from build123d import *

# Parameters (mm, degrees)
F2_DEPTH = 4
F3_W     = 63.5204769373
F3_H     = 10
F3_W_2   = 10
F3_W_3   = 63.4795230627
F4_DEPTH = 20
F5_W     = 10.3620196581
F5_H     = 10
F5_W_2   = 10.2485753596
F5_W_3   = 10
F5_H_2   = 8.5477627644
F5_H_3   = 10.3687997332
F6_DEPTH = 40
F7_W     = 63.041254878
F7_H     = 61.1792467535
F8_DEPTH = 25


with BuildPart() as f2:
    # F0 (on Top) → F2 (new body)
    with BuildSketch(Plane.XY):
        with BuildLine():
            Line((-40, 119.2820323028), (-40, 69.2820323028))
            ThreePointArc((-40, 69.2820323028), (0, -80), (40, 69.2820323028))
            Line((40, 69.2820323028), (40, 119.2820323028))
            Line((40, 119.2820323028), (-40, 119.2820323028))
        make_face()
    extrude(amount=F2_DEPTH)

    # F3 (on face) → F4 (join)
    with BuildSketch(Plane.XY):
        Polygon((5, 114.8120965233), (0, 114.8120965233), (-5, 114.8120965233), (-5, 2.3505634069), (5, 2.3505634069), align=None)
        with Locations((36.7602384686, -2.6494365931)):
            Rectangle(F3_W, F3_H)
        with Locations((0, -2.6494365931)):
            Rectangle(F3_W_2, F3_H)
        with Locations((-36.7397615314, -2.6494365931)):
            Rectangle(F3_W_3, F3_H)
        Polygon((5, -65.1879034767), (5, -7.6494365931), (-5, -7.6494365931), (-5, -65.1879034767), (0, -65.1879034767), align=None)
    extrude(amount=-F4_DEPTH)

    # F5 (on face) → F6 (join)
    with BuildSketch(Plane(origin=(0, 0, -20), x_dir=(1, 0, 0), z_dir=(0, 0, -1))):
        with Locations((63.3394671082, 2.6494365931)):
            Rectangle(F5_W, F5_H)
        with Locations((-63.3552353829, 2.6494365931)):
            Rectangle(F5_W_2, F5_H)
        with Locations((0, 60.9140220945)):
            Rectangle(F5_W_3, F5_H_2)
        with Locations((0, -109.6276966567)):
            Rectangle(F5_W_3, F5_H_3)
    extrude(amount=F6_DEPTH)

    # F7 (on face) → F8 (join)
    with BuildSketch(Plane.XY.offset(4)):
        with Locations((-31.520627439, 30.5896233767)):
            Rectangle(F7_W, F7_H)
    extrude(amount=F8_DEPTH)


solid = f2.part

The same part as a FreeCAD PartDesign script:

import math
import FreeCAD as App
import Part
import Sketcher
Q = App.Units.Quantity

doc = App.newDocument("Part")
params = doc.addObject("Spreadsheet::Sheet", "Params")
for row, (alias, value) in enumerate([
    ("sketch1_radius", "80 mm"),
    ("sketch1_width", "80 mm"),
    ("sketch1_height", "50 mm"),
    ("pad1_length", "4 mm"),
    ("sketch2_width", "10 mm"),
    ("pad2_length", "20 mm"),
    ("sketch3_width", "10 mm"),
    ("pad3_length", "40 mm"),
    ("pad4_length", "25 mm"),
], start=1):
    params.set(f"A{row}", alias)
    params.set(f"B{row}", "=" + value)
    params.setAlias(f"B{row}", alias)

body = doc.addObject("PartDesign::Body", "Body")

sketch1 = body.newObject("Sketcher::SketchObject", "Sketch")
sketch1.AttachmentSupport = (doc.getObject("XY_Plane"), [""])
sketch1.MapMode = "FlatFace"
sketch1.addGeometry(Part.LineSegment(App.Vector(-40, 119, 0), App.Vector(-40, 69, 0)), False)
sketch1.addGeometry(Part.ArcOfCircle(Part.Circle(App.Vector(0, 0, 0), App.Vector(0, 0, 1), 80), math.radians(120), math.radians(420)), False)
sketch1.addGeometry(Part.LineSegment(App.Vector(40, 69, 0), App.Vector(40, 119, 0)), False)
sketch1.addGeometry(Part.LineSegment(App.Vector(40, 119, 0), App.Vector(-40, 119, 0)), False)
sketch1.addConstraint(Sketcher.Constraint("Coincident", 0, 2, 1, 1))
sketch1.addConstraint(Sketcher.Constraint("Coincident", 1, 2, 2, 1))
sketch1.addConstraint(Sketcher.Constraint("Coincident", 2, 2, 3, 1))
sketch1.addConstraint(Sketcher.Constraint("Coincident", 3, 2, 0, 1))
sketch1.addConstraint(Sketcher.Constraint("Vertical", 0))
sketch1.addConstraint(Sketcher.Constraint("Vertical", 2))
sketch1.addConstraint(Sketcher.Constraint("Horizontal", 3))
sketch1.addConstraint(Sketcher.Constraint("Coincident", 1, 3, -1, 1))
sketch1.addConstraint(Sketcher.Constraint("Horizontal", 0, 2, 1, 2))
sketch1.addConstraint(Sketcher.Constraint("Radius", 1, Q("80 mm")))
sketch1.addConstraint(Sketcher.Constraint("DistanceX", 3, 2, 3, 1, Q("80 mm")))
sketch1.addConstraint(Sketcher.Constraint("DistanceY", 0, 2, 0, 1, Q("50 mm")))
sketch1.setExpression("Constraints[9]", "Params.sketch1_radius")
sketch1.setExpression("Constraints[10]", "Params.sketch1_width")
sketch1.setExpression("Constraints[11]", "Params.sketch1_height")
pad1 = body.newObject("PartDesign::Pad", "Pad")
pad1.Profile = sketch1
pad1.setExpression("Length", "Params.pad1_length")

sketch2 = body.newObject("Sketcher::SketchObject", "Sketch001")
sketch2.AttachmentSupport = (doc.getObject("XY_Plane"), [""])
sketch2.MapMode = "FlatFace"
sketch2.addGeometry(Part.LineSegment(App.Vector(5, 115, 0), App.Vector(-5, 115, 0)), False)
sketch2.addGeometry(Part.LineSegment(App.Vector(-5, 115, 0), App.Vector(-5, 2, 0)), False)
sketch2.addGeometry(Part.LineSegment(App.Vector(-5, 2, 0), App.Vector(-68, 2, 0)), False)
sketch2.addGeometry(Part.LineSegment(App.Vector(-68, 2, 0), App.Vector(-68, -8, 0)), False)
sketch2.addGeometry(Part.LineSegment(App.Vector(-68, -8, 0), App.Vector(-5, -8, 0)), False)
sketch2.addGeometry(Part.LineSegment(App.Vector(-5, -8, 0), App.Vector(-5, -65, 0)), False)
sketch2.addGeometry(Part.LineSegment(App.Vector(-5, -65, 0), App.Vector(5, -65, 0)), False)
sketch2.addGeometry(Part.LineSegment(App.Vector(5, -65, 0), App.Vector(5, -8, 0)), False)
sketch2.addGeometry(Part.LineSegment(App.Vector(5, -8, 0), App.Vector(69, -8, 0)), False)
sketch2.addGeometry(Part.LineSegment(App.Vector(69, -8, 0), App.Vector(69, 2, 0)), False)
sketch2.addGeometry(Part.LineSegment(App.Vector(69, 2, 0), App.Vector(5, 2, 0)), False)
sketch2.addGeometry(Part.LineSegment(App.Vector(5, 2, 0), App.Vector(5, 115, 0)), False)
sketch2.addConstraint(Sketcher.Constraint("Coincident", 0, 2, 1, 1))
sketch2.addConstraint(Sketcher.Constraint("Coincident", 1, 2, 2, 1))
sketch2.addConstraint(Sketcher.Constraint("Coincident", 2, 2, 3, 1))
sketch2.addConstraint(Sketcher.Constraint("Coincident", 3, 2, 4, 1))
sketch2.addConstraint(Sketcher.Constraint("Coincident", 4, 2, 5, 1))
sketch2.addConstraint(Sketcher.Constraint("Coincident", 5, 2, 6, 1))
sketch2.addConstraint(Sketcher.Constraint("Coincident", 6, 2, 7, 1))
sketch2.addConstraint(Sketcher.Constraint("Coincident", 7, 2, 8, 1))
sketch2.addConstraint(Sketcher.Constraint("Coincident", 8, 2, 9, 1))
sketch2.addConstraint(Sketcher.Constraint("Coincident", 9, 2, 10, 1))
sketch2.addConstraint(Sketcher.Constraint("Coincident", 10, 2, 11, 1))
sketch2.addConstraint(Sketcher.Constraint("Coincident", 11, 2, 0, 1))
sketch2.addConstraint(Sketcher.Constraint("Horizontal", 0))
sketch2.addConstraint(Sketcher.Constraint("Vertical", 1))
sketch2.addConstraint(Sketcher.Constraint("Horizontal", 2))
sketch2.addConstraint(Sketcher.Constraint("Vertical", 3))
sketch2.addConstraint(Sketcher.Constraint("Horizontal", 4))
sketch2.addConstraint(Sketcher.Constraint("Vertical", 5))
sketch2.addConstraint(Sketcher.Constraint("Horizontal", 6))
sketch2.addConstraint(Sketcher.Constraint("Vertical", 7))
sketch2.addConstraint(Sketcher.Constraint("Horizontal", 8))
sketch2.addConstraint(Sketcher.Constraint("Vertical", 9))
sketch2.addConstraint(Sketcher.Constraint("Horizontal", 10))
sketch2.addConstraint(Sketcher.Constraint("Vertical", 11))
sketch2.addConstraint(Sketcher.Constraint("Symmetric", 4, 2, 7, 2, -2))
sketch2.addConstraint(Sketcher.Constraint("Symmetric", 1, 2, 10, 2, -2))
sketch2.addConstraint(Sketcher.Constraint("Vertical", 1, 2, 4, 2))
sketch2.addConstraint(Sketcher.Constraint("Equal", 6, 3))
sketch2.addConstraint(Sketcher.Constraint("DistanceX", 0, 2, 0, 1, Q("10 mm")))
sketch2.addConstraint(Sketcher.Constraint("DistanceY", 5, 2, 0, 2, Q("180 mm")))
sketch2.addConstraint(Sketcher.Constraint("DistanceX", 2, 2, 2, 1, Q("63.479523 mm")))
sketch2.addConstraint(Sketcher.Constraint("DistanceX", 8, 1, 8, 2, Q("63.520477 mm")))
sketch2.addConstraint(Sketcher.Constraint("DistanceY", 1, 2, 1, 1, Q("112.461533 mm")))
sketch2.addConstraint(Sketcher.Constraint("DistanceY", -1, 1, 0, 2, Q("114.812097 mm")))
sketch2.setExpression("Constraints[28]", "Params.sketch2_width")
pad2 = body.newObject("PartDesign::Pad", "Pad001")
pad2.Profile = sketch2
pad2.setExpression("Length", "Params.pad2_length")
pad2.Reversed = True

sketch3 = body.newObject("Sketcher::SketchObject", "Sketch002")
sketch3.AttachmentSupport = (doc.getObject("XY_Plane"), [""])
sketch3.MapMode = "FlatFace"
sketch3.AttachmentOffset = App.Placement(App.Vector(0, 0, -20), App.Rotation())
sketch3.addGeometry(Part.LineSegment(App.Vector(58, -8, 0), App.Vector(58, 2, 0)), False)
sketch3.addGeometry(Part.LineSegment(App.Vector(58, 2, 0), App.Vector(69, 2, 0)), False)
sketch3.addGeometry(Part.LineSegment(App.Vector(69, 2, 0), App.Vector(69, -8, 0)), False)
sketch3.addGeometry(Part.LineSegment(App.Vector(69, -8, 0), App.Vector(58, -8, 0)), False)
sketch3.addGeometry(Part.LineSegment(App.Vector(-68, -8, 0), App.Vector(-68, 2, 0)), False)
sketch3.addGeometry(Part.LineSegment(App.Vector(-68, 2, 0), App.Vector(-58, 2, 0)), False)
sketch3.addGeometry(Part.LineSegment(App.Vector(-58, 2, 0), App.Vector(-58, -8, 0)), False)
sketch3.addGeometry(Part.LineSegment(App.Vector(-58, -8, 0), App.Vector(-68, -8, 0)), False)
sketch3.addGeometry(Part.LineSegment(App.Vector(-5, -65, 0), App.Vector(-5, -57, 0)), False)
sketch3.addGeometry(Part.LineSegment(App.Vector(-5, -57, 0), App.Vector(5, -57, 0)), False)
sketch3.addGeometry(Part.LineSegment(App.Vector(5, -57, 0), App.Vector(5, -65, 0)), False)
sketch3.addGeometry(Part.LineSegment(App.Vector(5, -65, 0), App.Vector(-5, -65, 0)), False)
sketch3.addGeometry(Part.LineSegment(App.Vector(-5, 104, 0), App.Vector(-5, 115, 0)), False)
sketch3.addGeometry(Part.LineSegment(App.Vector(-5, 115, 0), App.Vector(5, 115, 0)), False)
sketch3.addGeometry(Part.LineSegment(App.Vector(5, 115, 0), App.Vector(5, 104, 0)), False)
sketch3.addGeometry(Part.LineSegment(App.Vector(5, 104, 0), App.Vector(-5, 104, 0)), False)
sketch3.addConstraint(Sketcher.Constraint("Coincident", 0, 2, 1, 1))
sketch3.addConstraint(Sketcher.Constraint("Coincident", 1, 2, 2, 1))
sketch3.addConstraint(Sketcher.Constraint("Coincident", 2, 2, 3, 1))
sketch3.addConstraint(Sketcher.Constraint("Coincident", 3, 2, 0, 1))
sketch3.addConstraint(Sketcher.Constraint("Coincident", 4, 2, 5, 1))
sketch3.addConstraint(Sketcher.Constraint("Coincident", 5, 2, 6, 1))
sketch3.addConstraint(Sketcher.Constraint("Coincident", 6, 2, 7, 1))
sketch3.addConstraint(Sketcher.Constraint("Coincident", 7, 2, 4, 1))
sketch3.addConstraint(Sketcher.Constraint("Coincident", 8, 2, 9, 1))
sketch3.addConstraint(Sketcher.Constraint("Coincident", 9, 2, 10, 1))
sketch3.addConstraint(Sketcher.Constraint("Coincident", 10, 2, 11, 1))
sketch3.addConstraint(Sketcher.Constraint("Coincident", 11, 2, 8, 1))
sketch3.addConstraint(Sketcher.Constraint("Coincident", 12, 2, 13, 1))
sketch3.addConstraint(Sketcher.Constraint("Coincident", 13, 2, 14, 1))
sketch3.addConstraint(Sketcher.Constraint("Coincident", 14, 2, 15, 1))
sketch3.addConstraint(Sketcher.Constraint("Coincident", 15, 2, 12, 1))
sketch3.addConstraint(Sketcher.Constraint("Vertical", 0))
sketch3.addConstraint(Sketcher.Constraint("Horizontal", 1))
sketch3.addConstraint(Sketcher.Constraint("Vertical", 2))
sketch3.addConstraint(Sketcher.Constraint("Horizontal", 3))
sketch3.addConstraint(Sketcher.Constraint("Vertical", 4))
sketch3.addConstraint(Sketcher.Constraint("Horizontal", 5))
sketch3.addConstraint(Sketcher.Constraint("Vertical", 6))
sketch3.addConstraint(Sketcher.Constraint("Horizontal", 7))
sketch3.addConstraint(Sketcher.Constraint("Vertical", 8))
sketch3.addConstraint(Sketcher.Constraint("Horizontal", 9))
sketch3.addConstraint(Sketcher.Constraint("Vertical", 10))
sketch3.addConstraint(Sketcher.Constraint("Horizontal", 11))
sketch3.addConstraint(Sketcher.Constraint("Vertical", 12))
sketch3.addConstraint(Sketcher.Constraint("Horizontal", 13))
sketch3.addConstraint(Sketcher.Constraint("Vertical", 14))
sketch3.addConstraint(Sketcher.Constraint("Horizontal", 15))
sketch3.addConstraint(Sketcher.Constraint("Horizontal", 1, 2, 4, 2))
sketch3.addConstraint(Sketcher.Constraint("Horizontal", 3, 2, 6, 2))
sketch3.addConstraint(Sketcher.Constraint("Vertical", 11, 2, 12, 2))
sketch3.addConstraint(Sketcher.Constraint("Vertical", 10, 2, 13, 2))
sketch3.addConstraint(Sketcher.Constraint("Equal", 15, 0))
sketch3.addConstraint(Sketcher.Constraint("DistanceX", 9, 1, 9, 2, Q("10 mm")))
sketch3.addConstraint(Sketcher.Constraint("DistanceX", 8, 2, -1, 1, Q("5 mm")))
sketch3.addConstraint(Sketcher.Constraint("DistanceX", 4, 2, 1, 2, Q("137 mm")))
sketch3.addConstraint(Sketcher.Constraint("DistanceY", 12, 1, 12, 2, Q("10.3688 mm")))
sketch3.addConstraint(Sketcher.Constraint("DistanceX", 1, 1, 1, 2, Q("10.36202 mm")))
sketch3.addConstraint(Sketcher.Constraint("DistanceX", 5, 1, 5, 2, Q("10.248575 mm")))
sketch3.addConstraint(Sketcher.Constraint("DistanceY", 8, 1, 8, 2, Q("8.547763 mm")))
sketch3.addConstraint(Sketcher.Constraint("DistanceY", 8, 2, -1, 1, Q("56.640141 mm")))
sketch3.addConstraint(Sketcher.Constraint("DistanceX", -1, 1, 0, 2, Q("58.158457 mm")))
sketch3.addConstraint(Sketcher.Constraint("DistanceY", -1, 1, 0, 2, Q("2.350563 mm")))
sketch3.addConstraint(Sketcher.Constraint("DistanceY", -1, 1, 12, 2, Q("114.812097 mm")))
sketch3.setExpression("Constraints[37]", "Params.sketch3_width")
pad3 = body.newObject("PartDesign::Pad", "Pad002")
pad3.Profile = sketch3
pad3.setExpression("Length", "Params.pad3_length")
pad3.Reversed = True

sketch4 = body.newObject("Sketcher::SketchObject", "Sketch003")
sketch4.AttachmentSupport = (doc.getObject("XY_Plane"), [""])
sketch4.MapMode = "FlatFace"
sketch4.AttachmentOffset = App.Placement(App.Vector(0, 0, 4), App.Rotation())
sketch4.addGeometry(Part.LineSegment(App.Vector(-63, 61, 0), App.Vector(-63, 0, 0)), False)
sketch4.addGeometry(Part.LineSegment(App.Vector(-63, 0, 0), App.Vector(0, 0, 0)), False)
sketch4.addGeometry(Part.LineSegment(App.Vector(0, 0, 0), App.Vector(0, 61, 0)), False)
sketch4.addGeometry(Part.LineSegment(App.Vector(0, 61, 0), App.Vector(-63, 61, 0)), False)
sketch4.addConstraint(Sketcher.Constraint("Coincident", 0, 2, 1, 1))
sketch4.addConstraint(Sketcher.Constraint("Coincident", 1, 2, 2, 1))
sketch4.addConstraint(Sketcher.Constraint("Coincident", 2, 2, 3, 1))
sketch4.addConstraint(Sketcher.Constraint("Coincident", 3, 2, 0, 1))
sketch4.addConstraint(Sketcher.Constraint("Vertical", 0))
sketch4.addConstraint(Sketcher.Constraint("Horizontal", 1))
sketch4.addConstraint(Sketcher.Constraint("Vertical", 2))
sketch4.addConstraint(Sketcher.Constraint("Horizontal", 3))
sketch4.addConstraint(Sketcher.Constraint("Coincident", 1, 2, -1, 1))
sketch4.addConstraint(Sketcher.Constraint("DistanceX", 1, 1, 1, 2, Q("63.041255 mm")))
sketch4.addConstraint(Sketcher.Constraint("DistanceY", 0, 2, 0, 1, Q("61.179247 mm")))
pad4 = body.newObject("PartDesign::Pad", "Pad003")
pad4.Profile = sketch4
pad4.setExpression("Length", "Params.pad4_length")

doc.recompute()
